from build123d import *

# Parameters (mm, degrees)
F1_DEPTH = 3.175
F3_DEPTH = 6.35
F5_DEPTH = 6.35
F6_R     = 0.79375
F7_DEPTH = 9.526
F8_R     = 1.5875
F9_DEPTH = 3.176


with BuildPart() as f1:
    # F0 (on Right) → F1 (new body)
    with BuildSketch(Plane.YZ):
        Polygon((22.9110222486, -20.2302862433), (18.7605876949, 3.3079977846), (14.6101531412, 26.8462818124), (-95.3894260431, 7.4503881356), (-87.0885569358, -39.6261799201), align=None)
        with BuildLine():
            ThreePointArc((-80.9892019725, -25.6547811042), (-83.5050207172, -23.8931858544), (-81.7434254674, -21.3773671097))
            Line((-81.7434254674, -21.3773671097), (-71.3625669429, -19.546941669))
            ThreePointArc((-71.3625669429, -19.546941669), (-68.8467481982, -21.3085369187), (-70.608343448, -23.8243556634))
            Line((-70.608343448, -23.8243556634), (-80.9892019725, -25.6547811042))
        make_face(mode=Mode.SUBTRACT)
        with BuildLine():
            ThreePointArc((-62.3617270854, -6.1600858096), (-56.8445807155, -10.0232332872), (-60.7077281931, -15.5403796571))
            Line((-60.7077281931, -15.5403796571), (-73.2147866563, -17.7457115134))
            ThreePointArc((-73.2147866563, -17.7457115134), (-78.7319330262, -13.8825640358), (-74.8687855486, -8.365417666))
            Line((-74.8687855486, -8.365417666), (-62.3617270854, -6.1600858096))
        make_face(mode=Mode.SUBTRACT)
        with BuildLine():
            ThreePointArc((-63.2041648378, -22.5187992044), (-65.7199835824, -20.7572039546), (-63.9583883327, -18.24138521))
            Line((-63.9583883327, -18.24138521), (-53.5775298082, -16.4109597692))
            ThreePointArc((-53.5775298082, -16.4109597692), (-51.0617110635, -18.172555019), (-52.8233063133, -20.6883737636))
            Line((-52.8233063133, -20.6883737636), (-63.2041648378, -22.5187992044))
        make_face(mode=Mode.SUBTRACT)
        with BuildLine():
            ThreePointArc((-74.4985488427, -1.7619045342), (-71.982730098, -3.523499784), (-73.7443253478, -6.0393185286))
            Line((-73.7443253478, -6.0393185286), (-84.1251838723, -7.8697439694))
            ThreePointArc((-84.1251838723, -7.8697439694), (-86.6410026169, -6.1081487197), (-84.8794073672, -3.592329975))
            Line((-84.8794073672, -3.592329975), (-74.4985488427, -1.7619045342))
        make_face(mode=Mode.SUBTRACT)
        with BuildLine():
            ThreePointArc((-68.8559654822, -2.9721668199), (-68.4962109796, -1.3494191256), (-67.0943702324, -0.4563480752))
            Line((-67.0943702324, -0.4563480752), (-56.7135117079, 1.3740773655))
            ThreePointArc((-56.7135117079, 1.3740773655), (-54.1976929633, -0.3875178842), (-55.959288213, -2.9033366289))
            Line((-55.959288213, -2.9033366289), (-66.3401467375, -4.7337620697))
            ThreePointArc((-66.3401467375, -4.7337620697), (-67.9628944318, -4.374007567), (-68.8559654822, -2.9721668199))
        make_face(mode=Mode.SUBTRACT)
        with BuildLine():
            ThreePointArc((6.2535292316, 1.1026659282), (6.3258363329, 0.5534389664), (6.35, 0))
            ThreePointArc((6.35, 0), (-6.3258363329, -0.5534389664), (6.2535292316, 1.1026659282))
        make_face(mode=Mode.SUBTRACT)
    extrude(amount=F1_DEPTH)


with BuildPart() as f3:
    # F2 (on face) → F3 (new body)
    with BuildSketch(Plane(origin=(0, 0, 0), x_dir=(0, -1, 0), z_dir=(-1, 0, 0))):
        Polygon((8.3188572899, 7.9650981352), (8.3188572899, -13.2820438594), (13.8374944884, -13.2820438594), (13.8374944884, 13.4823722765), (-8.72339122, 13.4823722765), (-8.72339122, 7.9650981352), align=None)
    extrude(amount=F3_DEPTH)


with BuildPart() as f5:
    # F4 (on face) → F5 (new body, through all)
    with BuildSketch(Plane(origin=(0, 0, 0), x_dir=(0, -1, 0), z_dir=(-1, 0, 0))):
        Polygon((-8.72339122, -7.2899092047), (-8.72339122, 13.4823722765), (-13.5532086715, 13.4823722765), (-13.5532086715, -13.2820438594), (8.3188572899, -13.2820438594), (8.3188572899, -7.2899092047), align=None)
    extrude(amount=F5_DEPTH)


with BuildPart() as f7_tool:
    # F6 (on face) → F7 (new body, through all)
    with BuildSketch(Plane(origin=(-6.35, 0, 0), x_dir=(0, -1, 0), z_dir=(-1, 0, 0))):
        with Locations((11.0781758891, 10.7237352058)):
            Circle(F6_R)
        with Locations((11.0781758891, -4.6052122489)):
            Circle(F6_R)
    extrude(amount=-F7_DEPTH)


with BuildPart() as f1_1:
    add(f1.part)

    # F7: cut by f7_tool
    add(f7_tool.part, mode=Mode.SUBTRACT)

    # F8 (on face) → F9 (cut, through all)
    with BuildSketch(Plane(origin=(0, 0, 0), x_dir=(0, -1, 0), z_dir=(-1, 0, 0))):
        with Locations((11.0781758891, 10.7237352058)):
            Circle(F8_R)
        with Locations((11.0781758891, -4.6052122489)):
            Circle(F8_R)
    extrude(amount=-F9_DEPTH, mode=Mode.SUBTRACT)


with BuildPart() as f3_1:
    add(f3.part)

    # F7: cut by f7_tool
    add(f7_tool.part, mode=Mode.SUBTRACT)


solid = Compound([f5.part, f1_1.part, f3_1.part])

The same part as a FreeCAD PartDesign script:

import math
import FreeCAD as App
import Part
import Sketcher

V = App.Vector
Q = App.Units.Quantity

doc = App.newDocument("Part")
body = doc.addObject("PartDesign::Body", "Body")

sketch1 = doc.addObject("Sketcher::SketchObject", "Sketch")
body.addObject(sketch1)
sketch1.AttachmentSupport = (doc.YZ_Plane, [""])
sketch1.MapMode = "FlatFace"
sketch1.addGeometry(Part.LineSegment(V(22.911022, -20.230286, 0), V(14.610153, 26.846282, 0)), False)
sketch1.addGeometry(Part.LineSegment(V(14.610153, 26.846282, 0), V(-95.389426, 7.450388, 0)), False)
sketch1.addGeometry(Part.LineSegment(V(-95.389426, 7.450388, 0), V(-87.088557, -39.62618, 0)), False)
sketch1.addGeometry(Part.LineSegment(V(-87.088557, -39.62618, 0), V(22.911022, -20.230286, 0)), False)
sketch1.addGeometry(Part.LineSegment(V(-70.608343, -23.824356, 0), V(-80.989202, -25.654781, 0)), False)
sketch1.addGeometry(Part.ArcOfCircle(Part.Circle(V(-81.366314, -23.516074, 0), V(0, 0, 1), 2.1717), math.radians(100), math.radians(280)), False)
sketch1.addGeometry(Part.LineSegment(V(-81.743425, -21.377367, 0), V(-71.362567, -19.546942, 0)), False)
sketch1.addGeometry(Part.ArcOfCircle(Part.Circle(V(-70.985455, -21.685649, 0), V(0, 0, 1), 2.1717), math.radians(-80), math.radians(100)), False)
sketch1.addGeometry(Part.LineSegment(V(-52.823306, -20.688374, 0), V(-63.204165, -22.518799, 0)), False)
sketch1.addGeometry(Part.ArcOfCircle(Part.Circle(V(-63.581277, -20.380092, 0), V(0, 0, 1), 2.1717), math.radians(100), math.radians(280)), False)
sketch1.addGeometry(Part.LineSegment(V(-63.958388, -18.241385, 0), V(-53.57753, -16.41096, 0)), False)
sketch1.addGeometry(Part.ArcOfCircle(Part.Circle(V(-53.200418, -18.549667, 0), V(0, 0, 1), 2.1717), math.radians(-80), math.radians(100)), False)
sketch1.addGeometry(Part.LineSegment(V(-74.868786, -8.365418, 0), V(-62.361727, -6.160086, 0)), False)
sketch1.addGeometry(Part.ArcOfCircle(Part.Circle(V(-61.534728, -10.850233, 0), V(0, 0, 1), 4.7625), math.radians(-80), math.radians(100)), False)
sketch1.addGeometry(Part.LineSegment(V(-60.707728, -15.54038, 0), V(-73.214787, -17.745712, 0)), False)
sketch1.addGeometry(Part.ArcOfCircle(Part.Circle(V(-74.041786, -13.055565, 0), V(0, 0, 1), 4.7625), math.radians(100), math.radians(280)), False)
sketch1.addGeometry(Part.LineSegment(V(-84.879407, -3.59233, 0), V(-74.498549, -1.761905, 0)), False)
sketch1.addGeometry(Part.ArcOfCircle(Part.Circle(V(-74.121437, -3.900612, 0), V(0, 0, 1), 2.1717), math.radians(-80), math.radians(100)), False)
sketch1.addGeometry(Part.LineSegment(V(-73.744325, -6.039319, 0), V(-84.125184, -7.869744, 0)), False)
sketch1.addGeometry(Part.ArcOfCircle(Part.Circle(V(-84.502296, -5.731037, 0), V(0, 0, 1), 2.1717), math.radians(100), math.radians(280)), False)
sketch1.addGeometry(Part.ArcOfCircle(Part.Circle(V(-66.717258, -2.595055, 0), V(0, 0, 1), 2.1717), math.radians(-170), math.radians(-80)), False)
sketch1.addGeometry(Part.ArcOfCircle(Part.Circle(V(-66.717258, -2.595055, 0), V(0, 0, 1), 2.1717), math.radians(100), math.radians(190)), False)
sketch1.addGeometry(Part.LineSegment(V(-67.09437, -0.456348, 0), V(-56.713512, 1.374077, 0)), False)
sketch1.addGeometry(Part.ArcOfCircle(Part.Circle(V(-56.3364, -0.76463, 0), V(0, 0, 1), 2.1717), math.radians(-80), math.radians(100)), False)
sketch1.addGeometry(Part.LineSegment(V(-55.959288, -2.903337, 0), V(-66.340147, -4.733762, 0)), False)
sketch1.addGeometry(Part.ArcOfCircle(Part.Circle(V(0, 0, 0), V(0, 0, 1), 6.35), math.radians(10), math.radians(360)), False)
sketch1.addGeometry(Part.ArcOfCircle(Part.Circle(V(0, 0, 0), V(0, 0, 1), 6.35), math.radians(0), math.radians(10)), False)
sketch1.addConstraint(Sketcher.Constraint("Coincident", 0, 2, 1, 1))
sketch1.addConstraint(Sketcher.Constraint("Coincident", 1, 2, 2, 1))
sketch1.addConstraint(Sketcher.Constraint("Coincident", 2, 2, 3, 1))
sketch1.addConstraint(Sketcher.Constraint("Coincident", 3, 2, 0, 1))
sketch1.addConstraint(Sketcher.Constraint("Tangent", 4, 2, 5, 2))
sketch1.addConstraint(Sketcher.Constraint("Tangent", 5, 1, 6, 1))
sketch1.addConstraint(Sketcher.Constraint("Tangent", 6, 2, 7, 2))
sketch1.addConstraint(Sketcher.Constraint("Tangent", 7, 1, 4, 1))
sketch1.addConstraint(Sketcher.Constraint("Tangent", 8, 2, 9, 2))
sketch1.addConstraint(Sketcher.Constraint("Tangent", 9, 1, 10, 1))
sketch1.addConstraint(Sketcher.Constraint("Tangent", 10, 2, 11, 2))
sketch1.addConstraint(Sketcher.Constraint("Tangent", 11, 1, 8, 1))
sketch1.addConstraint(Sketcher.Constraint("Tangent", 12, 2, 13, 2))
sketch1.addConstraint(Sketcher.Constraint("Tangent", 13, 1, 14, 1))
sketch1.addConstraint(Sketcher.Constraint("Tangent", 14, 2, 15, 2))
sketch1.addConstraint(Sketcher.Constraint("Tangent", 15, 1, 12, 1))
sketch1.addConstraint(Sketcher.Constraint("Tangent", 16, 2, 17, 2))
sketch1.addConstraint(Sketcher.Constraint("Tangent", 17, 1, 18, 1))
sketch1.addConstraint(Sketcher.Constraint("Tangent", 18, 2, 19, 2))
sketch1.addConstraint(Sketcher.Constraint("Tangent", 19, 1, 16, 1))
sketch1.addConstraint(Sketcher.Constraint("Tangent", 20, 1, 21, 2))
sketch1.addConstraint(Sketcher.Constraint("Tangent", 21, 1, 22, 1))
sketch1.addConstraint(Sketcher.Constraint("Tangent", 22, 2, 23, 2))
sketch1.addConstraint(Sketcher.Constraint("Tangent", 23, 1, 24, 1))
sketch1.addConstraint(Sketcher.Constraint("Tangent", 24, 2, 20, 2))
sketch1.addConstraint(Sketcher.Constraint("Tangent", 25, 1, 26, 2))
sketch1.addConstraint(Sketcher.Constraint("Coincident", 26, 1, 25, 2))
sketch1.addConstraint(Sketcher.Constraint("Coincident", 25, 3, -1, 1))
sketch1.addConstraint(Sketcher.Constraint("Equal", 5, 7))
sketch1.addConstraint(Sketcher.Constraint("Equal", 7, 9))
sketch1.addConstraint(Sketcher.Constraint("Equal", 9, 11))
sketch1.addConstraint(Sketcher.Constraint("Equal", 13, 15))
sketch1.addConstraint(Sketcher.Constraint("Equal", 11, 17))
sketch1.addConstraint(Sketcher.Constraint("Equal", 17, 19))
sketch1.addConstraint(Sketcher.Constraint("Equal", 19, 20))
sketch1.addConstraint(Sketcher.Constraint("Equal", 20, 21))
sketch1.addConstraint(Sketcher.Constraint("Equal", 21, 23))
sketch1.addConstraint(Sketcher.Constraint("PointOnObject", 26, 1, -1))
sketch1.addConstraint(Sketcher.Constraint("Perpendicular", 0, 1))
sketch1.addConstraint(Sketcher.Constraint("Perpendicular", 1, 2))
sketch1.addConstraint(Sketcher.Constraint("Perpendicular", 2, 3))
sketch1.addConstraint(Sketcher.Constraint("Parallel", 3, 4))
sketch1.addConstraint(Sketcher.Constraint("Parallel", 6, 8))
sketch1.addConstraint(Sketcher.Constraint("Parallel", 10, 12))
sketch1.addConstraint(Sketcher.Constraint("Parallel", 14, 16))
sketch1.addConstraint(Sketcher.Constraint("Parallel", 18, 22))
sketch1.addConstraint(Sketcher.Constraint("Equal", 6, 8))
sketch1.addConstraint(Sketcher.Constraint("Equal", 10, 16))
sketch1.addConstraint(Sketcher.Constraint("Equal", 18, 22))
sketch1.addConstraint(Sketcher.Constraint("Radius", 25, Q("0.25 in")))
sketch1.addConstraint(Sketcher.Constraint("Angle", 0, Q("100 deg")))
sketch1.addConstraint(Sketcher.Constraint("Radius", 13, Q("0.1875 in")))
sketch1.addConstraint(Sketcher.Constraint("Distance", 12, Q("0.5 in")))
sketch1.addConstraint(Sketcher.Constraint("Radius", 5, Q("0.0855 in")))
sketch1.addConstraint(Sketcher.Constraint("Distance", 0, Q("1.882 in")))
sketch1.addConstraint(Sketcher.Constraint("Distance", 4, Q("0.415 in")))
sketch1.addConstraint(Sketcher.Constraint("Distance", 1, Q("4.3975 in")))
sketch1.addConstraint(Sketcher.Constraint("DistanceX", 9, 3, -1, 1, Q("2.5031999 in")))
sketch1.addConstraint(Sketcher.Constraint("DistanceY", 7, 3, 9, 3, Q("0.0513999 in")))
sketch1.addConstraint(Sketcher.Constraint("DistanceY", 17, 3, 20, 3, Q("0.0513999 in")))
sketch1.addConstraint(Sketcher.Constraint("DistanceX", 23, 3, -1, 1, 56.3364))
sketch1.addConstraint(Sketcher.Constraint("DistanceX", 4, 2, -1, 1, 80.989202))
sketch1.addConstraint(Sketcher.Constraint("DistanceY", 8, 2, -1, 1, 22.518799))
sketch1.addConstraint(Sketcher.Constraint("DistanceY", 17, 3, 1, 2, 11.351))
sketch1.addConstraint(Sketcher.Constraint("DistanceX", 2, 2, 7, 3, 16.103102))
sketch1.addConstraint(Sketcher.Constraint("DistanceY", 2, 2, 4, 2, 13.971399))
sketch1.addConstraint(Sketcher.Constraint("DistanceX", 13, 1, 10, 2, 7.130198))
sketch1.addConstraint(Sketcher.Constraint("DistanceY", 15, 1, 17, 1, 2.326099))
sketch1.addConstraint(Sketcher.Constraint("DistanceX", 18, 2, 15, 1, 9.256398))
sketch1.addConstraint(Sketcher.Constraint("DistanceX", -1, 1, 25, 1, 6.253529))
sketch1.addConstraint(Sketcher.Constraint("DistanceY", 20, 1, 20, 3, 0.377112))
pad1 = doc.addObject("PartDesign::Pad", "Pad")
body.addObject(pad1)
pad1.Profile = sketch1
pad1.Length = Q("0.125 in")
body2 = doc.addObject("PartDesign::Body", "Body001")

sketch2 = doc.addObject("Sketcher::SketchObject", "Sketch001")
body2.addObject(sketch2)
sketch2.AttachmentSupport = (doc.getObject("YZ_Plane001"), [""])
sketch2.MapMode = "FlatFace"
sketch2.addGeometry(Part.LineSegment(V(-8.318857, 7.965098, 0), V(-8.318857, -13.282044, 0)), False)
sketch2.addGeometry(Part.LineSegment(V(-8.318857, -13.282044, 0), V(-13.837494, -13.282044, 0)), False)
sketch2.addGeometry(Part.LineSegment(V(-13.837494, -13.282044, 0), V(-13.837494, 13.482372, 0)), False)
sketch2.addGeometry(Part.LineSegment(V(-13.837494, 13.482372, 0), V(8.723391, 13.482372, 0)), False)
sketch2.addGeometry(Part.LineSegment(V(8.723391, 13.482372, 0), V(8.723391, 7.965098, 0)), False)
sketch2.addGeometry(Part.LineSegment(V(8.723391, 7.965098, 0), V(-8.318857, 7.965098, 0)), False)
sketch2.addConstraint(Sketcher.Constraint("Coincident", 0, 2, 1, 1))
sketch2.addConstraint(Sketcher.Constraint("Coincident", 1, 2, 2, 1))
sketch2.addConstraint(Sketcher.Constraint("Coincident", 2, 2, 3, 1))
sketch2.addConstraint(Sketcher.Constraint("Coincident", 3, 2, 4, 1))
sketch2.addConstraint(Sketcher.Constraint("Coincident", 4, 2, 5, 1))
sketch2.addConstraint(Sketcher.Constraint("Coincident", 5, 2, 0, 1))
sketch2.addConstraint(Sketcher.Constraint("Vertical", 0))
sketch2.addConstraint(Sketcher.Constraint("Horizontal", 1))
sketch2.addConstraint(Sketcher.Constraint("Vertical", 2))
sketch2.addConstraint(Sketcher.Constraint("Horizontal", 3))
sketch2.addConstraint(Sketcher.Constraint("Vertical", 4))
sketch2.addConstraint(Sketcher.Constraint("Horizontal", 5))
sketch2.addConstraint(Sketcher.Constraint("DistanceX", 5, 2, 5, 1, 17.042249))
sketch2.addConstraint(Sketcher.Constraint("DistanceY", 0, 2, 0, 1, 21.247142))
sketch2.addConstraint(Sketcher.Constraint("DistanceY", -1, 1, 4, 2, 7.965098))
sketch2.addConstraint(Sketcher.Constraint("DistanceX", 1, 2, 1, 1, 5.518637))
sketch2.addConstraint(Sketcher.Constraint("DistanceY", 2, 1, 2, 2, 26.764416))
sketch2.addConstraint(Sketcher.Constraint("DistanceX", -1, 1, 3, 2, 8.723391))
pad2 = doc.addObject("PartDesign::Pad", "Pad001")
body2.addObject(pad2)
pad2.Profile = sketch2
pad2.Length = Q("0.25 in")
pad2.Reversed = True
body3 = doc.addObject("PartDesign::Body", "Body002")

sketch3 = doc.addObject("Sketcher::SketchObject", "Sketch002")
body3.addObject(sketch3)
sketch3.AttachmentSupport = (doc.getObject("YZ_Plane002"), [""])
sketch3.MapMode = "FlatFace"
sketch3.addGeometry(Part.LineSegment(V(8.723391, -7.289909, 0), V(8.723391, 13.482372, 0)), False)
sketch3.addGeometry(Part.LineSegment(V(8.723391, 13.482372, 0), V(13.553209, 13.482372, 0)), False)
sketch3.addGeometry(Part.LineSegment(V(13.553209, 13.482372, 0), V(13.553209, -13.282044, 0)), False)
sketch3.addGeometry(Part.LineSegment(V(13.553209, -13.282044, 0), V(-8.318857, -13.282044, 0)), False)
sketch3.addGeometry(Part.LineSegment(V(-8.318857, -13.282044, 0), V(-8.318857, -7.289909, 0)), False)
sketch3.addGeometry(Part.LineSegment(V(-8.318857, -7.289909, 0), V(8.723391, -7.289909, 0)), False)
sketch3.addConstraint(Sketcher.Constraint("Coincident", 0, 2, 1, 1))
sketch3.addConstraint(Sketcher.Constraint("Coincident", 1, 2, 2, 1))
sketch3.addConstraint(Sketcher.Constraint("Coincident", 2, 2, 3, 1))
sketch3.addConstraint(Sketcher.Constraint("Coincident", 3, 2, 4, 1))
sketch3.addConstraint(Sketcher.Constraint("Coincident", 4, 2, 5, 1))
sketch3.addConstraint(Sketcher.Constraint("Coincident", 5, 2, 0, 1))
sketch3.addConstraint(Sketcher.Constraint("Vertical", 0))
sketch3.addConstraint(Sketcher.Constraint("Horizontal", 1))
sketch3.addConstraint(Sketcher.Constraint("Vertical", 2))
sketch3.addConstraint(Sketcher.Constraint("Horizontal", 3))
sketch3.addConstraint(Sketcher.Constraint("Vertical", 4))
sketch3.addConstraint(Sketcher.Constraint("Horizontal", 5))
sketch3.addConstraint(Sketcher.Constraint("DistanceX", 5, 1, 5, 2, 17.042249))
sketch3.addConstraint(Sketcher.Constraint("DistanceY", 0, 1, 0, 2, 20.772281))
sketch3.addConstraint(Sketcher.Constraint("DistanceX", 1, 1, 1, 2, 4.829817))
sketch3.addConstraint(Sketcher.Constraint("DistanceY", 2, 2, 2, 1, 26.764416))
sketch3.addConstraint(Sketcher.Constraint("DistanceX", -1, 1, 0, 2, 8.723391))
sketch3.addConstraint(Sketcher.Constraint("DistanceY", 4, 2, -1, 1, 7.289909))
pad3 = doc.addObject("PartDesign::Pad", "Pad002")
body3.addObject(pad3)
pad3.Profile = sketch3
pad3.Length = Q("0.25 in")
pad3.Reversed = True
body4 = doc.addObject("PartDesign::Body", "Body003")
body4.AllowCompound = True

sketch4 = doc.addObject("Sketcher::SketchObject", "Sketch003")
body4.addObject(sketch4)
sketch4.AttachmentSupport = (doc.getObject("YZ_Plane003"), [""])
sketch4.MapMode = "FlatFace"
sketch4.AttachmentOffset = App.Placement(V(0, 0, -0.25 * 25.4), App.Rotation())
sketch4.addGeometry(Part.Circle(V(-11.078176, 10.723735, 0), V(0, 0, 1), 0.79375), False)
sketch4.addGeometry(Part.Circle(V(-11.078176, -4.605212, 0), V(0, 0, 1), 0.79375), False)
sketch4.addConstraint(Sketcher.Constraint("Equal", 0, 1))
sketch4.addConstraint(Sketcher.Constraint("Vertical", 0, 3, 1, 3))
sketch4.addConstraint(Sketcher.Constraint("Diameter", 0, Q("0.0625 in")))
sketch4.addConstraint(Sketcher.Constraint("DistanceX", 0, 3, -1, 1, 11.078176))
sketch4.addConstraint(Sketcher.Constraint("DistanceY", -1, 1, 0, 3, 10.723735))
sketch4.addConstraint(Sketcher.Constraint("DistanceY", 1, 3, -1, 1, 4.605212))
pad4 = doc.addObject("PartDesign::Pad", "Pad003")
body4.addObject(pad4)
pad4.Profile = sketch4
pad4.Length = 9.526
doc.recompute()

body5 = doc.addObject("PartDesign::Body", "Body004")
body5.BaseFeature = body4
boolean = doc.addObject("PartDesign::Boolean", "Boolean")
body.addObject(boolean)
boolean.Type = "Cut"
boolean.addObjects([body5])
doc.recompute()

sketch5 = doc.addObject("Sketcher::SketchObject", "Sketch004")
body.addObject(sketch5)
sketch5.AttachmentSupport = (doc.YZ_Plane, [""])
sketch5.MapMode = "FlatFace"
sketch5.addGeometry(Part.Circle(V(-11.078176, 10.723735, 0), V(0, 0, 1), 1.5875), False)
sketch5.addGeometry(Part.Circle(V(-11.078176, -4.605212, 0), V(0, 0, 1), 1.5875), False)
sketch5.addConstraint(Sketcher.Constraint("Equal", 0, 1))
sketch5.addConstraint(Sketcher.Constraint("Vertical", 0, 3, 1, 3))
sketch5.addConstraint(Sketcher.Constraint("Diameter", 0, Q("0.125 in")))
sketch5.addConstraint(Sketcher.Constraint("DistanceX", 0, 3, -1, 1, 11.078176))
sketch5.addConstraint(Sketcher.Constraint("DistanceY", -1, 1, 0, 3, 10.723735))
sketch5.addConstraint(Sketcher.Constraint("DistanceY", 1, 3, -1, 1, 4.605212))
pocket1 = doc.addObject("PartDesign::Pocket", "Pocket")
body.addObject(pocket1)
pocket1.Profile = sketch5
pocket1.Type = "ThroughAll"
pocket1.Reversed = True
doc.recompute()

boolean2 = doc.addObject("PartDesign::Boolean", "Boolean001")
body2.addObject(boolean2)
boolean2.Type = "Cut"
boolean2.addObjects([body4])

doc.recompute()
